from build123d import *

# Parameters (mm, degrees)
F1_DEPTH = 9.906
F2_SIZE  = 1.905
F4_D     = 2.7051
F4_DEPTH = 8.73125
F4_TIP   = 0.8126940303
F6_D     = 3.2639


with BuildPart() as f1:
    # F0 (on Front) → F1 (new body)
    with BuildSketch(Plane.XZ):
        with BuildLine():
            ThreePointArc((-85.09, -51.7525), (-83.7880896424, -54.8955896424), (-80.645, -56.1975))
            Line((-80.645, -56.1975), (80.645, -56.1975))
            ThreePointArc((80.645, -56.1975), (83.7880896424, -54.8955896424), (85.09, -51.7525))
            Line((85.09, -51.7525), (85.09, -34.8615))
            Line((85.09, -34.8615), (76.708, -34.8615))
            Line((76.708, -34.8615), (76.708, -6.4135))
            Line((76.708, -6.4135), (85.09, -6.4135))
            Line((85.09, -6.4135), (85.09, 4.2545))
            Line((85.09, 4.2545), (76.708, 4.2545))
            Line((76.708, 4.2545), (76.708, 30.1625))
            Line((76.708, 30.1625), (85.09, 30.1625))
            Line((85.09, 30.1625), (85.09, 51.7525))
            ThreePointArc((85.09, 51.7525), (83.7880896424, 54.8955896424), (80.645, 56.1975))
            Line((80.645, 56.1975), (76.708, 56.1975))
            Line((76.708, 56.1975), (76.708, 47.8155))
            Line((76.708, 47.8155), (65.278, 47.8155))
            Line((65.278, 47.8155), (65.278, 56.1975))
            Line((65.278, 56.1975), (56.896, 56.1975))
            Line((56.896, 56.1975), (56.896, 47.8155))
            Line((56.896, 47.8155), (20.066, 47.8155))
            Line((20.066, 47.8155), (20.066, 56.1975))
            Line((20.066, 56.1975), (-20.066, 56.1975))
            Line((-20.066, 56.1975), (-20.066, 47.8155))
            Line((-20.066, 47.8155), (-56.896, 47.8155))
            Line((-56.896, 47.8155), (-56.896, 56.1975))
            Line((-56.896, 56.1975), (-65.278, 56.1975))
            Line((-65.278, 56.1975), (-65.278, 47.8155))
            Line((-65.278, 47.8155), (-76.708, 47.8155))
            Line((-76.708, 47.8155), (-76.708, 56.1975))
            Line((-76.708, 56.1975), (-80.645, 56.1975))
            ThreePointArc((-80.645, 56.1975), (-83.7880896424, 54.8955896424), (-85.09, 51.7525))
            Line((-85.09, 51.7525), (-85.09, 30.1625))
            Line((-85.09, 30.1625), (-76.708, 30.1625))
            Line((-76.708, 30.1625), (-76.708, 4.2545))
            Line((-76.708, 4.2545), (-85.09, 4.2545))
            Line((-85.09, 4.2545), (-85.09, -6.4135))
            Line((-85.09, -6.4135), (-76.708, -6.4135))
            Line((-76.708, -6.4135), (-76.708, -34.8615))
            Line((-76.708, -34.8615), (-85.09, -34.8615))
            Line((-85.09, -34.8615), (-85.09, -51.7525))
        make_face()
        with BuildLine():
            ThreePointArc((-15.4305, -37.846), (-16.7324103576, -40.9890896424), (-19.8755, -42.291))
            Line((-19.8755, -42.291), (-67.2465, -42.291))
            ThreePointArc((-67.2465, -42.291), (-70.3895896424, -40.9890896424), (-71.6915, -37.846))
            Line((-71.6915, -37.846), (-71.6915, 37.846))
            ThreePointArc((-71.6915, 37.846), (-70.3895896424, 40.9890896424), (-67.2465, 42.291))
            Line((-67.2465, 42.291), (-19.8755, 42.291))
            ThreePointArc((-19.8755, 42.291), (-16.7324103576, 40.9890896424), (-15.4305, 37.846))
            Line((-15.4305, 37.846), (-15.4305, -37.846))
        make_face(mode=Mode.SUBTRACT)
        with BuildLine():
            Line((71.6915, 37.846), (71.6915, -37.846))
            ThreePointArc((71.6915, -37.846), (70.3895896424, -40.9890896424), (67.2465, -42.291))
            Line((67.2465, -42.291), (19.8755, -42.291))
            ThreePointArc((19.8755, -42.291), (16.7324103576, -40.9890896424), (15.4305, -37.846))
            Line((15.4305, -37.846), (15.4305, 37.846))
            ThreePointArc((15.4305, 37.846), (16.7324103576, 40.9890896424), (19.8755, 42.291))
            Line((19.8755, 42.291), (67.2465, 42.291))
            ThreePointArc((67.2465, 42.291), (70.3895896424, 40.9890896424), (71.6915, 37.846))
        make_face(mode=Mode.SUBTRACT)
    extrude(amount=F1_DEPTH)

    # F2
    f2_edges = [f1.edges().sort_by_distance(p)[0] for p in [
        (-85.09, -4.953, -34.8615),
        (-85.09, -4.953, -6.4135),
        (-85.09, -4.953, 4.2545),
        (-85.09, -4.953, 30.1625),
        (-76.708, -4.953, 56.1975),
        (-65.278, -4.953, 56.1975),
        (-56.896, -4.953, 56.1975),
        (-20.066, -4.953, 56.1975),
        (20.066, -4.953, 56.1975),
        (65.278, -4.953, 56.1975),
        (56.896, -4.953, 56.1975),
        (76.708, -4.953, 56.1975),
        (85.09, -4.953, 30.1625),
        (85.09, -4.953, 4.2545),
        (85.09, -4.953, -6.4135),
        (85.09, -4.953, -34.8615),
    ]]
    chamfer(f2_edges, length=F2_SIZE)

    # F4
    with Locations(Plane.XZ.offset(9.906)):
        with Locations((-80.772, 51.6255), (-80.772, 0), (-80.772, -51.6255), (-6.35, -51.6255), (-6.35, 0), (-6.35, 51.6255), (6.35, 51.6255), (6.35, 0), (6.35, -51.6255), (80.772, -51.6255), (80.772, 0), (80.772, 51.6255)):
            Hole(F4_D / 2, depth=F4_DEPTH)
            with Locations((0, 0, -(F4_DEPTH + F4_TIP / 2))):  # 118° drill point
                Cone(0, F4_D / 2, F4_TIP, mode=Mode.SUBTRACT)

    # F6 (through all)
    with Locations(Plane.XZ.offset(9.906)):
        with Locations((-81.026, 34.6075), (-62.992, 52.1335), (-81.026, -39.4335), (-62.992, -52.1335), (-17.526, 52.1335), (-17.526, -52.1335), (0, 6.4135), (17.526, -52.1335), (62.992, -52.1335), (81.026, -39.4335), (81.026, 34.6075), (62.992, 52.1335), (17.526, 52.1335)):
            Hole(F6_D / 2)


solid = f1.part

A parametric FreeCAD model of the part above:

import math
import FreeCAD as App
import Part
import Sketcher

V = App.Vector
Q = App.Units.Quantity


def edges_at(feature, points):
    """Names of the edges that pass closest to the given points."""
    edges = feature.Shape.Edges
    near = lambda p: min(range(len(edges)), key=lambda i: edges[i].distToShape(Part.Vertex(*p))[0])
    return sorted({f"Edge{near(p) + 1}" for p in points})

doc = App.newDocument("Part")
body = doc.addObject("PartDesign::Body", "Body")

# Sketch on XZ plane
sketch1 = body.newObject("Sketcher::SketchObject", "Sketch")
sketch1.AttachmentSupport = (doc.getObject("XZ_Plane"), [""])
sketch1.MapMode = "FlatFace"
sketch1.addGeometry([
    Part.ArcOfCircle(Part.Circle(V(-80.645, -51.7525, 0), V(0, 0, 1), 4.445), math.radians(180), math.radians(270)),  # 0
    Part.LineSegment(V(-80.645, -56.1975, 0), V(80.645, -56.1975, 0)),  # 1
    Part.ArcOfCircle(Part.Circle(V(80.645, -51.7525, 0), V(0, 0, 1), 4.445), math.radians(-90), math.radians(0)),  # 2
    Part.LineSegment(V(85.09, -51.7525, 0), V(85.09, -34.8615, 0)),  # 3
    Part.LineSegment(V(85.09, -34.8615, 0), V(76.708, -34.8615, 0)),  # 4
    Part.LineSegment(V(76.708, -34.8615, 0), V(76.708, -6.4135, 0)),  # 5
    Part.LineSegment(V(76.708, -6.4135, 0), V(85.09, -6.4135, 0)),  # 6
    Part.LineSegment(V(85.09, -6.4135, 0), V(85.09, 4.2545, 0)),  # 7
    Part.LineSegment(V(85.09, 4.2545, 0), V(76.708, 4.2545, 0)),  # 8
    Part.LineSegment(V(76.708, 4.2545, 0), V(76.708, 30.1625, 0)),  # 9
    Part.LineSegment(V(76.708, 30.1625, 0), V(85.09, 30.1625, 0)),  # 10
    Part.LineSegment(V(85.09, 30.1625, 0), V(85.09, 51.7525, 0)),  # 11
    Part.ArcOfCircle(Part.Circle(V(80.645, 51.7525, 0), V(0, 0, 1), 4.445), math.radians(0), math.radians(90)),  # 12
    Part.LineSegment(V(80.645, 56.1975, 0), V(76.708, 56.1975, 0)),  # 13
    Part.LineSegment(V(76.708, 56.1975, 0), V(76.708, 47.8155, 0)),  # 14
    Part.LineSegment(V(76.708, 47.8155, 0), V(65.278, 47.8155, 0)),  # 15
    Part.LineSegment(V(65.278, 47.8155, 0), V(65.278, 56.1975, 0)),  # 16
    Part.LineSegment(V(65.278, 56.1975, 0), V(56.896, 56.1975, 0)),  # 17
    Part.LineSegment(V(56.896, 56.1975, 0), V(56.896, 47.8155, 0)),  # 18
    Part.LineSegment(V(56.896, 47.8155, 0), V(20.066, 47.8155, 0)),  # 19
    Part.LineSegment(V(20.066, 47.8155, 0), V(20.066, 56.1975, 0)),  # 20
    Part.LineSegment(V(20.066, 56.1975, 0), V(-20.066, 56.1975, 0)),  # 21
    Part.LineSegment(V(-20.066, 56.1975, 0), V(-20.066, 47.8155, 0)),  # 22
    Part.LineSegment(V(-20.066, 47.8155, 0), V(-56.896, 47.8155, 0)),  # 23
    Part.LineSegment(V(-56.896, 47.8155, 0), V(-56.896, 56.1975, 0)),  # 24
    Part.LineSegment(V(-56.896, 56.1975, 0), V(-65.278, 56.1975, 0)),  # 25
    Part.LineSegment(V(-65.278, 56.1975, 0), V(-65.278, 47.8155, 0)),  # 26
    Part.LineSegment(V(-65.278, 47.8155, 0), V(-76.708, 47.8155, 0)),  # 27
    Part.LineSegment(V(-76.708, 47.8155, 0), V(-76.708, 56.1975, 0)),  # 28
    Part.LineSegment(V(-76.708, 56.1975, 0), V(-80.645, 56.1975, 0)),  # 29
    Part.ArcOfCircle(Part.Circle(V(-80.645, 51.7525, 0), V(0, 0, 1), 4.445), math.radians(90), math.radians(180)),  # 30
    Part.LineSegment(V(-85.09, 51.7525, 0), V(-85.09, 30.1625, 0)),  # 31
    Part.LineSegment(V(-85.09, 30.1625, 0), V(-76.708, 30.1625, 0)),  # 32
    Part.LineSegment(V(-76.708, 30.1625, 0), V(-76.708, 4.2545, 0)),  # 33
    Part.LineSegment(V(-76.708, 4.2545, 0), V(-85.09, 4.2545, 0)),  # 34
    Part.LineSegment(V(-85.09, 4.2545, 0), V(-85.09, -6.4135, 0)),  # 35
    Part.LineSegment(V(-85.09, -6.4135, 0), V(-76.708, -6.4135, 0)),  # 36
    Part.LineSegment(V(-76.708, -6.4135, 0), V(-76.708, -34.8615, 0)),  # 37
    Part.LineSegment(V(-76.708, -34.8615, 0), V(-85.09, -34.8615, 0)),  # 38
    Part.LineSegment(V(-85.09, -34.8615, 0), V(-85.09, -51.7525, 0)),  # 39
    Part.LineSegment(V(-15.4305, 37.846, 0), V(-15.4305, -37.846, 0)),  # 40
    Part.ArcOfCircle(Part.Circle(V(-19.8755, -37.846, 0), V(0, 0, 1), 4.445), math.radians(-90), math.radians(0)),  # 41
    Part.LineSegment(V(-19.8755, -42.291, 0), V(-67.2465, -42.291, 0)),  # 42
    Part.ArcOfCircle(Part.Circle(V(-67.2465, -37.846, 0), V(0, 0, 1), 4.445), math.radians(180), math.radians(270)),  # 43
    Part.LineSegment(V(-71.6915, -37.846, 0), V(-71.6915, 37.846, 0)),  # 44
    Part.ArcOfCircle(Part.Circle(V(-67.2465, 37.846, 0), V(0, 0, 1), 4.445), math.radians(90), math.radians(180)),  # 45
    Part.LineSegment(V(-67.2465, 42.291, 0), V(-19.8755, 42.291, 0)),  # 46
    Part.ArcOfCircle(Part.Circle(V(-19.8755, 37.846, 0), V(0, 0, 1), 4.445), math.radians(0), math.radians(90)),  # 47
    Part.ArcOfCircle(Part.Circle(V(67.2465, 37.846, 0), V(0, 0, 1), 4.445), math.radians(0), math.radians(90)),  # 48
    Part.LineSegment(V(71.6915, 37.846, 0), V(71.6915, -37.846, 0)),  # 49
    Part.ArcOfCircle(Part.Circle(V(67.2465, -37.846, 0), V(0, 0, 1), 4.445), math.radians(-90), math.radians(0)),  # 50
    Part.LineSegment(V(67.2465, -42.291, 0), V(19.8755, -42.291, 0)),  # 51
    Part.ArcOfCircle(Part.Circle(V(19.8755, -37.846, 0), V(0, 0, 1), 4.445), math.radians(180), math.radians(270)),  # 52
    Part.LineSegment(V(15.4305, -37.846, 0), V(15.4305, 37.846, 0)),  # 53
    Part.ArcOfCircle(Part.Circle(V(19.8755, 37.846, 0), V(0, 0, 1), 4.445), math.radians(90), math.radians(180)),  # 54
    Part.LineSegment(V(19.8755, 42.291, 0), V(67.2465, 42.291, 0)),  # 55
], False)
sketch1.addConstraint([
    Sketcher.Constraint("Tangent", 0, 2, 1, 1),
    Sketcher.Constraint("Tangent", 1, 2, 2, 1),
    Sketcher.Constraint("Tangent", 2, 2, 3, 1),
    Sketcher.Constraint("Coincident", 3, 2, 4, 1),
    Sketcher.Constraint("Coincident", 4, 2, 5, 1),
    Sketcher.Constraint("Coincident", 5, 2, 6, 1),
    Sketcher.Constraint("Coincident", 6, 2, 7, 1),
    Sketcher.Constraint("Coincident", 7, 2, 8, 1),
    Sketcher.Constraint("Coincident", 8, 2, 9, 1),
    Sketcher.Constraint("Coincident", 9, 2, 10, 1),
    Sketcher.Constraint("Coincident", 10, 2, 11, 1),
    Sketcher.Constraint("Tangent", 11, 2, 12, 1),
    Sketcher.Constraint("Tangent", 12, 2, 13, 1),
    Sketcher.Constraint("Coincident", 13, 2, 14, 1),
    Sketcher.Constraint("Coincident", 14, 2, 15, 1),
    Sketcher.Constraint("Coincident", 15, 2, 16, 1),
    Sketcher.Constraint("Coincident", 16, 2, 17, 1),
    Sketcher.Constraint("Coincident", 17, 2, 18, 1),
    Sketcher.Constraint("Coincident", 18, 2, 19, 1),
    Sketcher.Constraint("Coincident", 19, 2, 20, 1),
    Sketcher.Constraint("Coincident", 20, 2, 21, 1),
    Sketcher.Constraint("Coincident", 21, 2, 22, 1),
    Sketcher.Constraint("Coincident", 22, 2, 23, 1),
    Sketcher.Constraint("Coincident", 23, 2, 24, 1),
    Sketcher.Constraint("Coincident", 24, 2, 25, 1),
    Sketcher.Constraint("Coincident", 25, 2, 26, 1),
    Sketcher.Constraint("Coincident", 26, 2, 27, 1),
    Sketcher.Constraint("Coincident", 27, 2, 28, 1),
    Sketcher.Constraint("Coincident", 28, 2, 29, 1),
    Sketcher.Constraint("Tangent", 29, 2, 30, 1),
    Sketcher.Constraint("Tangent", 30, 2, 31, 1),
    Sketcher.Constraint("Coincident", 31, 2, 32, 1),
    Sketcher.Constraint("Coincident", 32, 2, 33, 1),
    Sketcher.Constraint("Coincident", 33, 2, 34, 1),
    Sketcher.Constraint("Coincident", 34, 2, 35, 1),
    Sketcher.Constraint("Coincident", 35, 2, 36, 1),
    Sketcher.Constraint("Coincident", 36, 2, 37, 1),
    Sketcher.Constraint("Coincident", 37, 2, 38, 1),
    Sketcher.Constraint("Coincident", 38, 2, 39, 1),
    Sketcher.Constraint("Tangent", 39, 2, 0, 1),
    Sketcher.Constraint("Tangent", 40, 2, 41, 2),
    Sketcher.Constraint("Tangent", 41, 1, 42, 1),
    Sketcher.Constraint("Tangent", 42, 2, 43, 2),
    Sketcher.Constraint("Tangent", 43, 1, 44, 1),
    Sketcher.Constraint("Tangent", 44, 2, 45, 2),
    Sketcher.Constraint("Tangent", 45, 1, 46, 1),
    Sketcher.Constraint("Tangent", 46, 2, 47, 2),
    Sketcher.Constraint("Tangent", 47, 1, 40, 1),
    Sketcher.Constraint("Tangent", 48, 1, 49, 1),
    Sketcher.Constraint("Tangent", 49, 2, 50, 2),
    Sketcher.Constraint("Tangent", 50, 1, 51, 1),
    Sketcher.Constraint("Tangent", 51, 2, 52, 2),
    Sketcher.Constraint("Tangent", 52, 1, 53, 1),
    Sketcher.Constraint("Tangent", 53, 2, 54, 2),
    Sketcher.Constraint("Tangent", 54, 1, 55, 1),
    Sketcher.Constraint("Tangent", 55, 2, 48, 2),
    Sketcher.Constraint("Horizontal", 1),
    Sketcher.Constraint("Vertical", 3),
    Sketcher.Constraint("Horizontal", 4),
    Sketcher.Constraint("Vertical", 5),
    Sketcher.Constraint("Horizontal", 6),
    Sketcher.Constraint("Vertical", 7),
    Sketcher.Constraint("Horizontal", 8),
    Sketcher.Constraint("Vertical", 9),
    Sketcher.Constraint("Horizontal", 10),
    Sketcher.Constraint("Vertical", 11),
    Sketcher.Constraint("Horizontal", 13),
    Sketcher.Constraint("Vertical", 14),
    Sketcher.Constraint("Horizontal", 15),
    Sketcher.Constraint("Vertical", 16),
    Sketcher.Constraint("Horizontal", 17),
    Sketcher.Constraint("Vertical", 18),
    Sketcher.Constraint("Horizontal", 19),
    Sketcher.Constraint("Vertical", 20),
    Sketcher.Constraint("Horizontal", 21),
    Sketcher.Constraint("Vertical", 22),
    Sketcher.Constraint("Horizontal", 23),
    Sketcher.Constraint("Vertical", 24),
    Sketcher.Constraint("Horizontal", 25),
    Sketcher.Constraint("Vertical", 26),
    Sketcher.Constraint("Horizontal", 27),
    Sketcher.Constraint("Vertical", 28),
    Sketcher.Constraint("Horizontal", 29),
    Sketcher.Constraint("Vertical", 31),
    Sketcher.Constraint("Horizontal", 32),
    Sketcher.Constraint("Vertical", 33),
    Sketcher.Constraint("Horizontal", 34),
    Sketcher.Constraint("Vertical", 35),
    Sketcher.Constraint("Horizontal", 36),
    Sketcher.Constraint("Vertical", 37),
    Sketcher.Constraint("Horizontal", 38),
    Sketcher.Constraint("Vertical", 39),
    Sketcher.Constraint("Vertical", 40),
    Sketcher.Constraint("Horizontal", 42),
    Sketcher.Constraint("Vertical", 44),
    Sketcher.Constraint("Horizontal", 46),
    Sketcher.Constraint("Vertical", 49),
    Sketcher.Constraint("Horizontal", 51),
    Sketcher.Constraint("Vertical", 53),
    Sketcher.Constraint("Horizontal", 55),
    Sketcher.Constraint("Equal", 0, 2),
    Sketcher.Constraint("Equal", 2, 12),
    Sketcher.Constraint("Equal", 12, 30),
    Sketcher.Constraint("Equal", 30, 41),
    Sketcher.Constraint("Equal", 41, 43),
    Sketcher.Constraint("Equal", 43, 45),
    Sketcher.Constraint("Equal", 45, 47),
    Sketcher.Constraint("Equal", 47, 48),
    Sketcher.Constraint("Equal", 48, 50),
    Sketcher.Constraint("Equal", 50, 52),
    Sketcher.Constraint("Equal", 52, 54),
    Sketcher.Constraint("Symmetric", 0, 3, 12, 3, -1, 1),
    Sketcher.Constraint("Symmetric", 2, 3, 30, 3, -1, 1),
    Sketcher.Constraint("Symmetric", 43, 3, 48, 3, -1, 1),
    Sketcher.Constraint("Symmetric", 47, 3, 52, 3, -1, 1),
    Sketcher.Constraint("Symmetric", 19, 2, 22, 2, -2),
    Sketcher.Constraint("Symmetric", 17, 2, 24, 2, -2),
    Sketcher.Constraint("Symmetric", 15, 2, 26, 2, -2),
    Sketcher.Constraint("Symmetric", 10, 2, 31, 2, -2),
    Sketcher.Constraint("Symmetric", 8, 2, 33, 2, -2),
    Sketcher.Constraint("Symmetric", 6, 2, 35, 2, -2),
    Sketcher.Constraint("Symmetric", 4, 2, 37, 2, -2),
    Sketcher.Constraint("Horizontal", 47, 3, 48, 3),
    Sketcher.Constraint("Horizontal", 13, 2, 16, 2),
    Sketcher.Constraint("Horizontal", 15, 2, 18, 2),
    Sketcher.Constraint("Horizontal", 17, 2, 20, 2),
    Sketcher.Constraint("Vertical", 3, 2, 6, 2),
    Sketcher.Constraint("Vertical", 5, 2, 8, 2),
    Sketcher.Constraint("Vertical", 9, 2, 13, 2),
    Sketcher.Constraint("Vertical", 28, 2, 32, 2),
    Sketcher.Constraint("Equal", 10, 17),
    Sketcher.Constraint("Equal", 38, 14),
    Sketcher.Constraint("Radius", 0, Q("0.175 in")),
    Sketcher.Constraint("DistanceX", 1, 1, 1, 2, Q("6.35 in")),
    Sketcher.Constraint("DistanceX", 4, 2, 4, 1, Q("0.33 in")),
    Sketcher.Constraint("DistanceX", 15, 2, 15, 1, Q("0.45 in")),
    Sketcher.Constraint("DistanceX", 19, 2, 19, 1, Q("1.45 in")),
    Sketcher.Constraint("DistanceY", 5, 1, 5, 2, Q("1.12 in")),
    Sketcher.Constraint("DistanceY", 7, 1, 7, 2, Q("0.42 in")),
    Sketcher.Constraint("DistanceY", 9, 1, 9, 2, Q("1.02 in")),
    Sketcher.Constraint("DistanceY", 11, 1, 11, 2, Q("0.85 in")),
    Sketcher.Constraint("DistanceY", 40, 2, 40, 1, Q("2.98 in")),
    Sketcher.Constraint("DistanceX", 42, 2, 42, 1, Q("1.865 in")),
    Sketcher.Constraint("DistanceY", 3, 1, 3, 2, Q("0.665 in")),
    Sketcher.Constraint("DistanceX", 41, 3, -1, 1, Q("0.7825 in")),
])
pad1 = body.newObject("PartDesign::Pad", "Pad")
pad1.Profile = sketch1
pad1.Length = Q("0.39 in")
doc.recompute()

chamfer = body.newObject("PartDesign::Chamfer", "Chamfer")
chamfer.Base = (pad1, edges_at(pad1, [
    (-85.09, -4.953, -34.861),
    (-85.09, -4.953, -6.413),
    (-85.09, -4.953, 4.255),
    (-85.09, -4.953, 30.163),
    (-76.708, -4.953, 56.197),
    (-65.278, -4.953, 56.197),
    (-56.896, -4.953, 56.197),
    (-20.066, -4.953, 56.197),
    (20.066, -4.953, 56.197),
    (65.278, -4.953, 56.197),
    (56.896, -4.953, 56.197),
    (76.708, -4.953, 56.197),
    (85.09, -4.953, 30.163),
    (85.09, -4.953, 4.255),
    (85.09, -4.953, -6.413),
    (85.09, -4.953, -34.861),
]))
chamfer.Size = Q("0.075 in")

# Sketch on XZ plane
sketch2 = body.newObject("Sketcher::SketchObject", "Sketch001")
sketch2.AttachmentSupport = (doc.getObject("XZ_Plane"), [""])
sketch2.MapMode = "FlatFace"
sketch2.AttachmentOffset = App.Placement(V(0, 0, 0.39 * 25.4), App.Rotation())
sketch2.addGeometry([
    Part.Circle(V(-80.772, 51.6255, 0), V(0, 0, 1), 1.35255),  # 0
    Part.Circle(V(-80.772, 0, 0), V(0, 0, 1), 1.35255),  # 1
    Part.Circle(V(-80.772, -51.6255, 0), V(0, 0, 1), 1.35255),  # 2
    Part.Circle(V(-6.35, -51.6255, 0), V(0, 0, 1), 1.35255),  # 3
    Part.Circle(V(-6.35, 0, 0), V(0, 0, 1), 1.35255),  # 4
    Part.Circle(V(-6.35, 51.6255, 0), V(0, 0, 1), 1.35255),  # 5
    Part.Circle(V(6.35, 51.6255, 0), V(0, 0, 1), 1.35255),  # 6
    Part.Circle(V(6.35, 0, 0), V(0, 0, 1), 1.35255),  # 7
    Part.Circle(V(6.35, -51.6255, 0), V(0, 0, 1), 1.35255),  # 8
    Part.Circle(V(80.772, -51.6255, 0), V(0, 0, 1), 1.35255),  # 9
    Part.Circle(V(80.772, 0, 0), V(0, 0, 1), 1.35255),  # 10
    Part.Circle(V(80.772, 51.6255, 0), V(0, 0, 1), 1.35255),  # 11
], False)
sketch2.addConstraint([
    Sketcher.Constraint("Equal", 0, 1),
    Sketcher.Constraint("Equal", 1, 2),
    Sketcher.Constraint("Equal", 2, 3),
    Sketcher.Constraint("Equal", 3, 4),
    Sketcher.Constraint("Equal", 4, 5),
    Sketcher.Constraint("Equal", 5, 6),
    Sketcher.Constraint("Equal", 6, 7),
    Sketcher.Constraint("Equal", 7, 8),
    Sketcher.Constraint("Equal", 8, 9),
    Sketcher.Constraint("Equal", 9, 10),
    Sketcher.Constraint("Equal", 10, 11),
    Sketcher.Constraint("Symmetric", 3, 3, 6, 3, -1, 1),
    Sketcher.Constraint("Symmetric", 4, 3, 7, 3, -1, 1),
    Sketcher.Constraint("Symmetric", 5, 3, 8, 3, -1, 1),
    Sketcher.Constraint("Symmetric", 0, 3, 9, 3, -1, 1),
    Sketcher.Constraint("Symmetric", 1, 3, 10, 3, -1, 1),
    Sketcher.Constraint("Symmetric", 2, 3, 11, 3, -1, 1),
    Sketcher.Constraint("Symmetric", 5, 3, 6, 3, -2),
    Sketcher.Constraint("Symmetric", 2, 3, 9, 3, -2),
    Sketcher.Constraint("PointOnObject", 1, 3, -1),
    Sketcher.Constraint("PointOnObject", 4, 3, -1),
    Sketcher.Constraint("Horizontal", 2, 3, 3, 3),
    Sketcher.Constraint("Vertical", 0, 3, 1, 3),
    Sketcher.Constraint("Vertical", 3, 3, 4, 3),
    Sketcher.Constraint("Diameter", 0, Q("0.1065 in")),
    Sketcher.Constraint("DistanceX", 5, 3, 6, 3, Q("0.5 in")),
    Sketcher.Constraint("DistanceX", 0, 3, -1, 1, Q("3.18 in")),
    Sketcher.Constraint("DistanceY", 2, 3, 0, 3, Q("4.065 in")),
])
doc.recompute()
hole = body.newObject("PartDesign::Hole", "Hole")
hole.Profile = sketch2
hole.ThreadType = "None"
hole.Diameter = Q("0.1065 in")
hole.DepthType = "Dimension"
hole.Depth = Q("0.34375 in")
hole.DrillPoint = "Angled"
hole.DrillPointAngle = 118

# Sketch on XZ plane
sketch3 = body.newObject("Sketcher::SketchObject", "Sketch002")
sketch3.AttachmentSupport = (doc.getObject("XZ_Plane"), [""])
sketch3.MapMode = "FlatFace"
sketch3.AttachmentOffset = App.Placement(V(0, 0, 0.39 * 25.4), App.Rotation())
sketch3.addGeometry([
    Part.Circle(V(-81.026, 34.6075, 0), V(0, 0, 1), 1.63195),  # 0
    Part.Circle(V(-62.992, 52.1335, 0), V(0, 0, 1), 1.63195),  # 1
    Part.Circle(V(-81.026, -39.4335, 0), V(0, 0, 1), 1.63195),  # 2
    Part.Circle(V(-62.992, -52.1335, 0), V(0, 0, 1), 1.63195),  # 3
    Part.Circle(V(-17.526, 52.1335, 0), V(0, 0, 1), 1.63195),  # 4
    Part.Circle(V(-17.526, -52.1335, 0), V(0, 0, 1), 1.63195),  # 5
    Part.Circle(V(0, 6.4135, 0), V(0, 0, 1), 1.63195),  # 6
    Part.Circle(V(17.526, -52.1335, 0), V(0, 0, 1), 1.63195),  # 7
    Part.Circle(V(62.992, -52.1335, 0), V(0, 0, 1), 1.63195),  # 8
    Part.Circle(V(81.026, -39.4335, 0), V(0, 0, 1), 1.63195),  # 9
    Part.Circle(V(81.026, 34.6075, 0), V(0, 0, 1), 1.63195),  # 10
    Part.Circle(V(62.992, 52.1335, 0), V(0, 0, 1), 1.63195),  # 11
    Part.Circle(V(17.526, 52.1335, 0), V(0, 0, 1), 1.63195),  # 12
], False)
sketch3.addConstraint([
    Sketcher.Constraint("Equal", 0, 1),
    Sketcher.Constraint("Equal", 1, 2),
    Sketcher.Constraint("Equal", 2, 3),
    Sketcher.Constraint("Equal", 3, 4),
    Sketcher.Constraint("Equal", 4, 5),
    Sketcher.Constraint("Equal", 5, 6),
    Sketcher.Constraint("Equal", 6, 7),
    Sketcher.Constraint("Equal", 7, 8),
    Sketcher.Constraint("Equal", 8, 9),
    Sketcher.Constraint("Equal", 9, 10),
    Sketcher.Constraint("Equal", 10, 11),
    Sketcher.Constraint("Equal", 11, 12),
    Sketcher.Constraint("Symmetric", 4, 3, 7, 3, -1, 1),
    Sketcher.Constraint("Symmetric", 1, 3, 8, 3, -1, 1),
    Sketcher.Constraint("Symmetric", 3, 3, 11, 3, -1, 1),
    Sketcher.Constraint("Symmetric", 5, 3, 12, 3, -1, 1),
    Sketcher.Constraint("Symmetric", 5, 3, 7, 3, -2),
    Sketcher.Constraint("Symmetric", 3, 3, 8, 3, -2),
    Sketcher.Constraint("Symmetric", 2, 3, 9, 3, -2),
    Sketcher.Constraint("Symmetric", 0, 3, 10, 3, -2),
    Sketcher.Constraint("PointOnObject", 6, 3, -2),
    Sketcher.Constraint("Horizontal", 1, 3, 4, 3),
    Sketcher.Constraint("Vertical", 0, 3, 2, 3),
    Sketcher.Constraint("Diameter", 0, Q("0.1285 in")),
    Sketcher.Constraint("DistanceY", 3, 3, 2, 3, Q("0.5 in")),
    Sketcher.Constraint("DistanceX", 0, 3, 4, 3, Q("2.5 in")),
    Sketcher.Constraint("DistanceY", 6, 3, 4, 3, Q("1.8 in")),
    Sketcher.Constraint("DistanceX", 0, 3, -1, 1, Q("3.19 in")),
    Sketcher.Constraint("DistanceX", 1, 3, -1, 1, Q("2.48 in")),
    Sketcher.Constraint("DistanceY", 0, 3, 1, 3, Q("0.69 in")),
    Sketcher.Constraint("DistanceY", 2, 3, 0, 3, Q("2.915 in")),
])
doc.recompute()
hole2 = body.newObject("PartDesign::Hole", "Hole001")
hole2.Profile = sketch3
hole2.ThreadType = "None"
hole2.Diameter = Q("0.1285 in")
hole2.DepthType = "ThroughAll"

doc.recompute()
